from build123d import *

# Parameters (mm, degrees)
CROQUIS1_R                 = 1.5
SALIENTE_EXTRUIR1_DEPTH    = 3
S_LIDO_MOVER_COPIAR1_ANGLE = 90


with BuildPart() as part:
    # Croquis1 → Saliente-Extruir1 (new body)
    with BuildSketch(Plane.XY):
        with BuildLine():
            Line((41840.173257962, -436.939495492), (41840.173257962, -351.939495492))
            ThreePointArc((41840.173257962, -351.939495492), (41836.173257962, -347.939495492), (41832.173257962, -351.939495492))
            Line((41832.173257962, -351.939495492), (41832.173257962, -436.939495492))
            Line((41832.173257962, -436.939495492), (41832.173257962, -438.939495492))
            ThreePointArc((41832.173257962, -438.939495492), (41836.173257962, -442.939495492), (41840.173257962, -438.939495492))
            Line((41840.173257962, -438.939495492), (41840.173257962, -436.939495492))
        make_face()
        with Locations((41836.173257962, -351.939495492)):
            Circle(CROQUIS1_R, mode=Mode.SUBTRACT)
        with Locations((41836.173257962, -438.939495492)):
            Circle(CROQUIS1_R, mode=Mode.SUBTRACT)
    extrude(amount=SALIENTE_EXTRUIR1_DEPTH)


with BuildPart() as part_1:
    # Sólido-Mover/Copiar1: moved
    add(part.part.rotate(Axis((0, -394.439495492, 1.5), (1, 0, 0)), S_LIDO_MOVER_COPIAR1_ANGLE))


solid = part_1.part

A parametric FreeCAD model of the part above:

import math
import FreeCAD as App
import Part
import Sketcher
Q = App.Units.Quantity

doc = App.newDocument("Part")
body = doc.addObject("PartDesign::Body", "Body")

# Sketch on XY plane
sketch1 = body.newObject("Sketcher::SketchObject", "Sketch")
sketch1.AttachmentSupport = (doc.getObject("XY_Plane"), [""])
sketch1.MapMode = "FlatFace"
sketch1.addGeometry([
    Part.ArcOfCircle(Part.Circle(App.Vector(41836.2, -351.9, 0), App.Vector(0, 0, 1), 4), math.radians(0), math.radians(180)),  # 0
    Part.LineSegment(App.Vector(41832.2, -351.9, 0), App.Vector(41832.2, -438.9, 0)),  # 1
    Part.ArcOfCircle(Part.Circle(App.Vector(41836.2, -438.9, 0), App.Vector(0, 0, 1), 4), math.radians(180), math.radians(360)),  # 2
    Part.LineSegment(App.Vector(41840.2, -438.9, 0), App.Vector(41840.2, -351.9, 0)),  # 3
    Part.Circle(App.Vector(41836.2, -438.9, 0), App.Vector(0, 0, 1), 1.5),  # 4
    Part.Circle(App.Vector(41836.2, -351.9, 0), App.Vector(0, 0, 1), 1.5),  # 5
], False)
sketch1.addConstraint([
    Sketcher.Constraint("Tangent", 0, 2, 1, 1),
    Sketcher.Constraint("Tangent", 1, 2, 2, 1),
    Sketcher.Constraint("Tangent", 2, 2, 3, 1),
    Sketcher.Constraint("Tangent", 3, 2, 0, 1),
    Sketcher.Constraint("Vertical", 1),
    Sketcher.Constraint("Vertical", 3),
    Sketcher.Constraint("Coincident", 4, 3, 2, 3),
    Sketcher.Constraint("Coincident", 5, 3, 0, 3),
    Sketcher.Constraint("Equal", 4, 5),
    Sketcher.Constraint("Diameter", 4, Q("3 mm")),
    Sketcher.Constraint("Radius", 0, Q("4 mm")),
    Sketcher.Constraint("DistanceY", 1, 2, 1, 1, Q("87 mm")),
    Sketcher.Constraint("DistanceX", -1, 1, 0, 3, Q("41836.173258 mm")),
    Sketcher.Constraint("DistanceY", 0, 3, -1, 1, Q("351.939495 mm")),
])
pad1 = body.newObject("PartDesign::Pad", "Pad")
pad1.Profile = sketch1
pad1.Length = 3
body2 = doc.addObject("PartDesign::Body", "Body001")
doc.recompute()

body.Placement = App.Placement(App.Vector(0, -392.939495, 395.939495), App.Rotation(App.Vector(1, 0, 0), 90))
boolean = body2.newObject("PartDesign::Boolean", "Boolean")
boolean.Type = "Fuse"
boolean.addObjects([body])

doc.recompute()
